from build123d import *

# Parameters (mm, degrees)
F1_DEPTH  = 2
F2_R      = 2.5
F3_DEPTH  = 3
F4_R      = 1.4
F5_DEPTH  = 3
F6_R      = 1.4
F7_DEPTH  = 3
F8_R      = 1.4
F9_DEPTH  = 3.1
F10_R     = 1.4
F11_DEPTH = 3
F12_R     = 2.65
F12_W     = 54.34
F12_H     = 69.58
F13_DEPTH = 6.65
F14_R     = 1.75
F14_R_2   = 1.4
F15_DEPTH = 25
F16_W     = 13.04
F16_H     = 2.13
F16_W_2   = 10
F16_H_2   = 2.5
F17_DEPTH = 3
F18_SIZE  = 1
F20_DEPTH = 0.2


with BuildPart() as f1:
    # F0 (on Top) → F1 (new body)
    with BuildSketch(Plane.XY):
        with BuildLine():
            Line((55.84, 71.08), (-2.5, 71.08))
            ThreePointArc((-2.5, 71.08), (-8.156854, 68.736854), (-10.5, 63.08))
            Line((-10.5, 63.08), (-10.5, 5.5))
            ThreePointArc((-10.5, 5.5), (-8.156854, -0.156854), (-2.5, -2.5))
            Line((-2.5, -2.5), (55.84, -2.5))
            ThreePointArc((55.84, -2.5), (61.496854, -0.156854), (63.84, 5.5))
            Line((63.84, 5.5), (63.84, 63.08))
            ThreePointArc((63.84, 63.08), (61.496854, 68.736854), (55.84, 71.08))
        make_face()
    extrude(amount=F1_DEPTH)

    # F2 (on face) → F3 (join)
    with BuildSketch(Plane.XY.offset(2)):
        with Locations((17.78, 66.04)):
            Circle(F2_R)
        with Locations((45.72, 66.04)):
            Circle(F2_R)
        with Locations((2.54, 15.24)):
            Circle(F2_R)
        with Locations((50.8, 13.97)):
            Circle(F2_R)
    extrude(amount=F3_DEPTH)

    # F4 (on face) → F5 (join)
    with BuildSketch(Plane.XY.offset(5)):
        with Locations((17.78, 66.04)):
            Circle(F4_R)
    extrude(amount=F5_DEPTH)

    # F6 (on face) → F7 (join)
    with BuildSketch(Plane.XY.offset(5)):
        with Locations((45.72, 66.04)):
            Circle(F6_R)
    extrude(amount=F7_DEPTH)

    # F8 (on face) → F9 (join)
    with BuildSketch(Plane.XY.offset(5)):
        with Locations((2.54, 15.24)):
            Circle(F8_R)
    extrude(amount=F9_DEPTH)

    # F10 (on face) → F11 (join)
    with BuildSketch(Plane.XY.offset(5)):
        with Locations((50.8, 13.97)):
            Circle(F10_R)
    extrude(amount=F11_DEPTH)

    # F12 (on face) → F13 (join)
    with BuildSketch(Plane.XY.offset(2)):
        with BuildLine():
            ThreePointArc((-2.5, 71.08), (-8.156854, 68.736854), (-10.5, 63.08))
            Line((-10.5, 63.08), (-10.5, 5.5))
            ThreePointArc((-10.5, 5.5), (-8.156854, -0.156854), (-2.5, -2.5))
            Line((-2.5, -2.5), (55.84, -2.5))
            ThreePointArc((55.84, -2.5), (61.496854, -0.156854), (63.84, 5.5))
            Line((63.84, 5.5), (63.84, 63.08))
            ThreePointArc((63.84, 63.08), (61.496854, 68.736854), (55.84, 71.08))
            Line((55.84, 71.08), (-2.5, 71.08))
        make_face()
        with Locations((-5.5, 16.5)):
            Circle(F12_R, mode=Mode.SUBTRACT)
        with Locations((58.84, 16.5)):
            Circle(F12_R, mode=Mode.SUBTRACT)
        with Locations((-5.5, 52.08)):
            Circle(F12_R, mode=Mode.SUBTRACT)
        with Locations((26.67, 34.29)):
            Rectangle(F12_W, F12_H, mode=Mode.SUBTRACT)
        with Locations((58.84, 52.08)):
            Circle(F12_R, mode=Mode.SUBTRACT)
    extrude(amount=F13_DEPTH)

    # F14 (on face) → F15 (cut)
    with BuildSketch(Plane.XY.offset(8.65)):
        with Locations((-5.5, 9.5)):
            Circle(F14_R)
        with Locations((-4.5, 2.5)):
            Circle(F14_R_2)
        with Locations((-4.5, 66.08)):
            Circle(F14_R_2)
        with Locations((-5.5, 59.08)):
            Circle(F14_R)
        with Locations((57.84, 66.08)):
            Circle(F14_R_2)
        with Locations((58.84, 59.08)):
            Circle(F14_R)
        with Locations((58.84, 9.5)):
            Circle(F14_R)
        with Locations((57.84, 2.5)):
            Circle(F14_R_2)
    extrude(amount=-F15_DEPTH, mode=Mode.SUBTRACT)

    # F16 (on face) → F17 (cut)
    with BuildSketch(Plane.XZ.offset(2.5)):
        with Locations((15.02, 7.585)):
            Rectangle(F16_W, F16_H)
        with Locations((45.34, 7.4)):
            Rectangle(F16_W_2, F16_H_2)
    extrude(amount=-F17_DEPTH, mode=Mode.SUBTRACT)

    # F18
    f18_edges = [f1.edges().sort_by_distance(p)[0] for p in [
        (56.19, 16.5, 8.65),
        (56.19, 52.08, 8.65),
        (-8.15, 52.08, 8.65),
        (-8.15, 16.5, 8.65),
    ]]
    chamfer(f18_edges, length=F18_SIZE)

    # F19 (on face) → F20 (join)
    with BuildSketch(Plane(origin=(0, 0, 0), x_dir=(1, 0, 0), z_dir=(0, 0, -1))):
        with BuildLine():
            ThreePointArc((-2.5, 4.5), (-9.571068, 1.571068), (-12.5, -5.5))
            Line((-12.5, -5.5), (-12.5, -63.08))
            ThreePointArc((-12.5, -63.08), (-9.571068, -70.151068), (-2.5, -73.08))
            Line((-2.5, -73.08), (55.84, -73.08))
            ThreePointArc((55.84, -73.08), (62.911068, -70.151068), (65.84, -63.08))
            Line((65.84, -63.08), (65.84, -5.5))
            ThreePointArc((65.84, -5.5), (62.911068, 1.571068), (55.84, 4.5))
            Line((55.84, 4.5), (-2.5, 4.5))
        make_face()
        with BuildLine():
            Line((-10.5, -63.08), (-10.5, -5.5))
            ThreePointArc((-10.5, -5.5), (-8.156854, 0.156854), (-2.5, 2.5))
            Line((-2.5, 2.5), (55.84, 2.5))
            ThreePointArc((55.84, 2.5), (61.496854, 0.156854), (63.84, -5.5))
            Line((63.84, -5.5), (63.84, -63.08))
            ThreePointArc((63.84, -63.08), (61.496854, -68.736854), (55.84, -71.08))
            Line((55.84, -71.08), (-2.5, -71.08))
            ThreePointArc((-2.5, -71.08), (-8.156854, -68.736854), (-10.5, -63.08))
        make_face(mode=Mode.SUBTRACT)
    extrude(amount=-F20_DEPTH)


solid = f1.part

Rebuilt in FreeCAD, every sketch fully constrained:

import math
import FreeCAD as App
import Part
import Sketcher

V = App.Vector
Q = App.Units.Quantity


def edges_at(feature, points):
    """Names of the edges that pass closest to the given points."""
    edges = feature.Shape.Edges
    near = lambda p: min(range(len(edges)), key=lambda i: edges[i].distToShape(Part.Vertex(*p))[0])
    return sorted({f"Edge{near(p) + 1}" for p in points})

doc = App.newDocument("Part")
body = doc.addObject("PartDesign::Body", "Body")

sketch1 = doc.addObject("Sketcher::SketchObject", "Sketch")
body.addObject(sketch1)
sketch1.AttachmentSupport = (doc.XY_Plane, [""])
sketch1.MapMode = "FlatFace"
sketch1.addGeometry([
    Part.LineSegment(V(56, 71, 0), V(-2, 71, 0)),
    Part.ArcOfCircle(Part.Circle(V(-2, 63, 0), V(0, 0, 1), 8), math.radians(90), math.radians(180)),
    Part.LineSegment(V(-10, 63, 0), V(-10, 6, 0)),
    Part.ArcOfCircle(Part.Circle(V(-2, 6, 0), V(0, 0, 1), 8), math.radians(-180), math.radians(-90)),
    Part.LineSegment(V(-2, -2, 0), V(56, -2, 0)),
    Part.ArcOfCircle(Part.Circle(V(56, 6, 0), V(0, 0, 1), 8), math.radians(-90), math.radians(0)),
    Part.LineSegment(V(64, 6, 0), V(64, 63, 0)),
    Part.ArcOfCircle(Part.Circle(V(56, 63, 0), V(0, 0, 1), 8), math.radians(0), math.radians(90)),
], False)
sketch1.addConstraint([
    Sketcher.Constraint("Tangent", 0, 2, 1, 1),
    Sketcher.Constraint("Tangent", 1, 2, 2, 1),
    Sketcher.Constraint("Tangent", 2, 2, 3, 1),
    Sketcher.Constraint("Tangent", 3, 2, 4, 1),
    Sketcher.Constraint("Tangent", 4, 2, 5, 1),
    Sketcher.Constraint("Tangent", 5, 2, 6, 1),
    Sketcher.Constraint("Tangent", 6, 2, 7, 1),
    Sketcher.Constraint("Tangent", 7, 2, 0, 1),
    Sketcher.Constraint("Horizontal", 0),
    Sketcher.Constraint("Vertical", 2),
    Sketcher.Constraint("Horizontal", 4),
    Sketcher.Constraint("Vertical", 6),
    Sketcher.Constraint("Equal", 1, 3),
    Sketcher.Constraint("Equal", 3, 5),
    Sketcher.Constraint("Equal", 5, 7),
    Sketcher.Constraint("Radius", 1, Q("8.000001 mm")),
    Sketcher.Constraint("DistanceX", 0, 2, 0, 1, Q("58.34 mm")),
    Sketcher.Constraint("DistanceY", 2, 2, 2, 1, Q("57.58 mm")),
    Sketcher.Constraint("DistanceX", 1, 3, -1, 1, Q("2.499999 mm")),
    Sketcher.Constraint("DistanceY", -1, 1, 3, 3, Q("5.500001 mm")),
])
pad1 = doc.addObject("PartDesign::Pad", "Pad")
body.addObject(pad1)
pad1.Profile = sketch1
pad1.Length = 2

sketch2 = doc.addObject("Sketcher::SketchObject", "Sketch001")
body.addObject(sketch2)
sketch2.AttachmentSupport = (doc.XY_Plane, [""])
sketch2.MapMode = "FlatFace"
sketch2.AttachmentOffset = App.Placement(V(0, 0, 2), App.Rotation())
sketch2.addGeometry([
    Part.Circle(V(17.8, 66, 0), V(0, 0, 1), 2.5),
    Part.Circle(V(45.7, 66, 0), V(0, 0, 1), 2.5),
    Part.Circle(V(2.5, 15.2, 0), V(0, 0, 1), 2.5),
    Part.Circle(V(50.8, 14, 0), V(0, 0, 1), 2.5),
], False)
sketch2.addConstraint([
    Sketcher.Constraint("Equal", 0, 1),
    Sketcher.Constraint("Equal", 1, 2),
    Sketcher.Constraint("Equal", 2, 3),
    Sketcher.Constraint("Horizontal", 0, 3, 1, 3),
    Sketcher.Constraint("Diameter", 0, Q("5 mm")),
    Sketcher.Constraint("DistanceX", -1, 1, 3, 3, Q("50.8 mm")),
    Sketcher.Constraint("DistanceY", 2, 3, 0, 3, Q("50.8 mm")),
    Sketcher.Constraint("DistanceX", -1, 1, 0, 3, Q("17.78 mm")),
    Sketcher.Constraint("DistanceY", -1, 1, 0, 3, Q("66.04 mm")),
    Sketcher.Constraint("DistanceX", -1, 1, 1, 3, Q("45.72 mm")),
    Sketcher.Constraint("DistanceX", -1, 1, 2, 3, Q("2.54 mm")),
    Sketcher.Constraint("DistanceY", -1, 1, 3, 3, Q("13.97 mm")),
])
pad2 = doc.addObject("PartDesign::Pad", "Pad001")
body.addObject(pad2)
pad2.Profile = sketch2
pad2.Length = 3

sketch3 = doc.addObject("Sketcher::SketchObject", "Sketch002")
body.addObject(sketch3)
sketch3.AttachmentSupport = (doc.XY_Plane, [""])
sketch3.MapMode = "FlatFace"
sketch3.AttachmentOffset = App.Placement(V(0, 0, 5), App.Rotation())
sketch3.addGeometry(Part.Circle(V(17.8, 66, 0), V(0, 0, 1), 1.4), False)
sketch3.addConstraint([
    Sketcher.Constraint("Diameter", 0, Q("2.8 mm")),
    Sketcher.Constraint("DistanceX", -1, 1, 0, 3, Q("17.78 mm")),
    Sketcher.Constraint("DistanceY", -1, 1, 0, 3, Q("66.04 mm")),
])
pad3 = doc.addObject("PartDesign::Pad", "Pad002")
body.addObject(pad3)
pad3.Profile = sketch3
pad3.Length = 3

sketch4 = doc.addObject("Sketcher::SketchObject", "Sketch003")
body.addObject(sketch4)
sketch4.AttachmentSupport = (doc.XY_Plane, [""])
sketch4.MapMode = "FlatFace"
sketch4.AttachmentOffset = App.Placement(V(0, 0, 5), App.Rotation())
sketch4.addGeometry(Part.Circle(V(45.7, 66, 0), V(0, 0, 1), 1.4), False)
sketch4.addConstraint([
    Sketcher.Constraint("Diameter", 0, Q("2.8 mm")),
    Sketcher.Constraint("DistanceX", -1, 1, 0, 3, Q("45.72 mm")),
    Sketcher.Constraint("DistanceY", -1, 1, 0, 3, Q("66.04 mm")),
])
pad4 = doc.addObject("PartDesign::Pad", "Pad003")
body.addObject(pad4)
pad4.Profile = sketch4
pad4.Length = 3

sketch5 = doc.addObject("Sketcher::SketchObject", "Sketch004")
body.addObject(sketch5)
sketch5.AttachmentSupport = (doc.XY_Plane, [""])
sketch5.MapMode = "FlatFace"
sketch5.AttachmentOffset = App.Placement(V(0, 0, 5), App.Rotation())
sketch5.addGeometry(Part.Circle(V(2.5, 15.2, 0), V(0, 0, 1), 1.4), False)
sketch5.addConstraint([
    Sketcher.Constraint("Diameter", 0, Q("2.8 mm")),
    Sketcher.Constraint("DistanceX", -1, 1, 0, 3, Q("2.54 mm")),
    Sketcher.Constraint("DistanceY", -1, 1, 0, 3, Q("15.24 mm")),
])
pad5 = doc.addObject("PartDesign::Pad", "Pad004")
body.addObject(pad5)
pad5.Profile = sketch5
pad5.Length = 3.1

sketch6 = doc.addObject("Sketcher::SketchObject", "Sketch005")
body.addObject(sketch6)
sketch6.AttachmentSupport = (doc.XY_Plane, [""])
sketch6.MapMode = "FlatFace"
sketch6.AttachmentOffset = App.Placement(V(0, 0, 5), App.Rotation())
sketch6.addGeometry(Part.Circle(V(50.8, 14, 0), V(0, 0, 1), 1.4), False)
sketch6.addConstraint([
    Sketcher.Constraint("Diameter", 0, Q("2.8 mm")),
    Sketcher.Constraint("DistanceX", -1, 1, 0, 3, Q("50.8 mm")),
    Sketcher.Constraint("DistanceY", -1, 1, 0, 3, Q("13.97 mm")),
])
pad6 = doc.addObject("PartDesign::Pad", "Pad005")
body.addObject(pad6)
pad6.Profile = sketch6
pad6.Length = 3

sketch7 = doc.addObject("Sketcher::SketchObject", "Sketch006")
body.addObject(sketch7)
sketch7.AttachmentSupport = (doc.XY_Plane, [""])
sketch7.MapMode = "FlatFace"
sketch7.AttachmentOffset = App.Placement(V(0, 0, 2), App.Rotation())
sketch7.addGeometry([
    Part.ArcOfCircle(Part.Circle(V(-2.5, 63.1, 0), V(0, 0, 1), 8), math.radians(90), math.radians(180)),
    Part.LineSegment(V(-10.5, 63.1, 0), V(-10.5, 5.5, 0)),
    Part.ArcOfCircle(Part.Circle(V(-2.5, 5.5, 0), V(0, 0, 1), 8), math.radians(-180), math.radians(-90)),
    Part.LineSegment(V(-2.5, -2.5, 0), V(55.8, -2.5, 0)),
    Part.ArcOfCircle(Part.Circle(V(55.8, 5.5, 0), V(0, 0, 1), 8), math.radians(-90), math.radians(0)),
    Part.LineSegment(V(63.8, 5.5, 0), V(63.8, 63.1, 0)),
    Part.ArcOfCircle(Part.Circle(V(55.8, 63.1, 0), V(0, 0, 1), 8), math.radians(0), math.radians(90)),
    Part.LineSegment(V(55.8, 71.1, 0), V(-2.5, 71.1, 0)),
    Part.Circle(V(-5.5, 16.5, 0), V(0, 0, 1), 2.6),
    Part.Circle(V(58.8, 16.5, 0), V(0, 0, 1), 2.6),
    Part.Circle(V(-5.5, 52.1, 0), V(0, 0, 1), 2.6),
    Part.LineSegment(V(53.8, -0.5, 0), V(-0.5, -0.5, 0)),
    Part.LineSegment(V(-0.5, -0.5, 0), V(-0.5, 69.1, 0)),
    Part.LineSegment(V(-0.5, 69.1, 0), V(53.8, 69.1, 0)),
    Part.LineSegment(V(53.8, 69.1, 0), V(53.8, -0.5, 0)),
    Part.Circle(V(58.8, 52.1, 0), V(0, 0, 1), 2.6),
], False)
sketch7.addConstraint([
    Sketcher.Constraint("Tangent", 0, 2, 1, 1),
    Sketcher.Constraint("Tangent", 1, 2, 2, 1),
    Sketcher.Constraint("Tangent", 2, 2, 3, 1),
    Sketcher.Constraint("Tangent", 3, 2, 4, 1),
    Sketcher.Constraint("Tangent", 4, 2, 5, 1),
    Sketcher.Constraint("Tangent", 5, 2, 6, 1),
    Sketcher.Constraint("Tangent", 6, 2, 7, 1),
    Sketcher.Constraint("Tangent", 7, 2, 0, 1),
    Sketcher.Constraint("Coincident", 11, 2, 12, 1),
    Sketcher.Constraint("Coincident", 12, 2, 13, 1),
    Sketcher.Constraint("Coincident", 13, 2, 14, 1),
    Sketcher.Constraint("Coincident", 14, 2, 11, 1),
    Sketcher.Constraint("Vertical", 1),
    Sketcher.Constraint("Horizontal", 3),
    Sketcher.Constraint("Vertical", 5),
    Sketcher.Constraint("Horizontal", 7),
    Sketcher.Constraint("Horizontal", 11),
    Sketcher.Constraint("Vertical", 12),
    Sketcher.Constraint("Horizontal", 13),
    Sketcher.Constraint("Vertical", 14),
    Sketcher.Constraint("Equal", 0, 2),
    Sketcher.Constraint("Equal", 2, 4),
    Sketcher.Constraint("Equal", 4, 6),
    Sketcher.Constraint("Equal", 8, 9),
    Sketcher.Constraint("Equal", 9, 10),
    Sketcher.Constraint("Equal", 10, 15),
    Sketcher.Constraint("Horizontal", 8, 3, 9, 3),
    Sketcher.Constraint("Horizontal", 10, 3, 15, 3),
    Sketcher.Constraint("Vertical", 8, 3, 10, 3),
    Sketcher.Constraint("Vertical", 9, 3, 15, 3),
    Sketcher.Constraint("Radius", 0, Q("8.000001 mm")),
    Sketcher.Constraint("Diameter", 8, Q("5.3 mm")),
    Sketcher.Constraint("DistanceX", 8, 3, 2, 3, Q("3.000001 mm")),
    Sketcher.Constraint("DistanceY", 2, 3, 8, 3, Q("10.999999 mm")),
    Sketcher.Constraint("DistanceX", 4, 3, 9, 3, Q("3.000001 mm")),
    Sketcher.Constraint("DistanceY", 10, 3, 0, 3, Q("10.999999 mm")),
    Sketcher.Constraint("DistanceX", 2, 2, 11, 2, Q("2 mm")),
    Sketcher.Constraint("DistanceY", 2, 2, 11, 2, Q("2 mm")),
    Sketcher.Constraint("DistanceY", 12, 2, 7, 2, Q("2 mm")),
    Sketcher.Constraint("DistanceX", 13, 2, 6, 2, Q("2 mm")),
    Sketcher.Constraint("DistanceX", 3, 1, 3, 2, Q("58.34 mm")),
    Sketcher.Constraint("DistanceY", 1, 2, 1, 1, Q("57.58 mm")),
    Sketcher.Constraint("DistanceX", 0, 3, -1, 1, Q("2.499999 mm")),
    Sketcher.Constraint("DistanceY", -1, 1, 2, 3, Q("5.500001 mm")),
])
pad7 = doc.addObject("PartDesign::Pad", "Pad006")
body.addObject(pad7)
pad7.Profile = sketch7
pad7.Length = 6.65

sketch8 = doc.addObject("Sketcher::SketchObject", "Sketch007")
body.addObject(sketch8)
sketch8.AttachmentSupport = (doc.XY_Plane, [""])
sketch8.MapMode = "FlatFace"
sketch8.AttachmentOffset = App.Placement(V(0, 0, 8.65), App.Rotation())
sketch8.addGeometry([
    Part.Circle(V(-5.5, 9.5, 0), V(0, 0, 1), 1.8),
    Part.Circle(V(-4.5, 2.5, 0), V(0, 0, 1), 1.4),
    Part.Circle(V(-4.5, 66.1, 0), V(0, 0, 1), 1.4),
    Part.Circle(V(-5.5, 59.1, 0), V(0, 0, 1), 1.8),
    Part.Circle(V(57.8, 66.1, 0), V(0, 0, 1), 1.4),
    Part.Circle(V(58.8, 59.1, 0), V(0, 0, 1), 1.8),
    Part.Circle(V(58.8, 9.5, 0), V(0, 0, 1), 1.8),
    Part.Circle(V(57.8, 2.5, 0), V(0, 0, 1), 1.4),
], False)
sketch8.addConstraint([
    Sketcher.Constraint("Equal", 1, 2),
    Sketcher.Constraint("Equal", 0, 3),
    Sketcher.Constraint("Equal", 2, 4),
    Sketcher.Constraint("Equal", 3, 5),
    Sketcher.Constraint("Equal", 5, 6),
    Sketcher.Constraint("Equal", 4, 7),
    Sketcher.Constraint("Horizontal", 2, 3, 4, 3),
    Sketcher.Constraint("Horizontal", 3, 3, 5, 3),
    Sketcher.Constraint("Horizontal", 0, 3, 6, 3),
    Sketcher.Constraint("Horizontal", 1, 3, 7, 3),
    Sketcher.Constraint("Vertical", 1, 3, 2, 3),
    Sketcher.Constraint("Vertical", 0, 3, 3, 3),
    Sketcher.Constraint("Vertical", 5, 3, 6, 3),
    Sketcher.Constraint("Vertical", 4, 3, 7, 3),
    Sketcher.Constraint("Diameter", 0, Q("3.5 mm")),
    Sketcher.Constraint("Diameter", 1, Q("2.8 mm")),
    Sketcher.Constraint("DistanceX", 0, 3, 1, 3, Q("1 mm")),
    Sketcher.Constraint("DistanceY", 1, 3, 0, 3, Q("7 mm")),
    Sketcher.Constraint("DistanceY", 3, 3, 2, 3, Q("7 mm")),
    Sketcher.Constraint("DistanceX", 4, 3, 5, 3, Q("1 mm")),
    Sketcher.Constraint("DistanceX", 0, 3, -1, 1, Q("5.5 mm")),
    Sketcher.Constraint("DistanceY", -1, 1, 0, 3, Q("9.5 mm")),
    Sketcher.Constraint("DistanceY", -1, 1, 2, 3, Q("66.08 mm")),
    Sketcher.Constraint("DistanceX", -1, 1, 4, 3, Q("57.84 mm")),
])
pocket1 = doc.addObject("PartDesign::Pocket", "Pocket")
body.addObject(pocket1)
pocket1.Profile = sketch8
pocket1.Length = 25

sketch9 = doc.addObject("Sketcher::SketchObject", "Sketch008")
body.addObject(sketch9)
sketch9.AttachmentSupport = (doc.XZ_Plane, [""])
sketch9.MapMode = "FlatFace"
sketch9.AttachmentOffset = App.Placement(V(0, 0, 2.5), App.Rotation())
sketch9.addGeometry([
    Part.LineSegment(V(8.5, 8.7, 0), V(8.5, 6.5, 0)),
    Part.LineSegment(V(8.5, 6.5, 0), V(21.5, 6.5, 0)),
    Part.LineSegment(V(21.5, 6.5, 0), V(21.5, 8.7, 0)),
    Part.LineSegment(V(21.5, 8.7, 0), V(8.5, 8.7, 0)),
    Part.LineSegment(V(40.3, 8.7, 0), V(40.3, 6.2, 0)),
    Part.LineSegment(V(40.3, 6.2, 0), V(50.3, 6.2, 0)),
    Part.LineSegment(V(50.3, 6.2, 0), V(50.3, 8.7, 0)),
    Part.LineSegment(V(50.3, 8.7, 0), V(40.3, 8.7, 0)),
], False)
sketch9.addConstraint([
    Sketcher.Constraint("Coincident", 0, 2, 1, 1),
    Sketcher.Constraint("Coincident", 1, 2, 2, 1),
    Sketcher.Constraint("Coincident", 2, 2, 3, 1),
    Sketcher.Constraint("Coincident", 3, 2, 0, 1),
    Sketcher.Constraint("Coincident", 4, 2, 5, 1),
    Sketcher.Constraint("Coincident", 5, 2, 6, 1),
    Sketcher.Constraint("Coincident", 6, 2, 7, 1),
    Sketcher.Constraint("Coincident", 7, 2, 4, 1),
    Sketcher.Constraint("Vertical", 0),
    Sketcher.Constraint("Horizontal", 1),
    Sketcher.Constraint("Vertical", 2),
    Sketcher.Constraint("Horizontal", 3),
    Sketcher.Constraint("Vertical", 4),
    Sketcher.Constraint("Horizontal", 5),
    Sketcher.Constraint("Vertical", 6),
    Sketcher.Constraint("Horizontal", 7),
    Sketcher.Constraint("Horizontal", 3, 2, 6, 2),
    Sketcher.Constraint("DistanceX", 5, 1, 5, 2, Q("10 mm")),
    Sketcher.Constraint("DistanceY", 4, 2, 4, 1, Q("2.5 mm")),
    Sketcher.Constraint("DistanceX", 1, 1, 1, 2, Q("13.04 mm")),
    Sketcher.Constraint("DistanceY", 0, 2, 0, 1, Q("2.13 mm")),
    Sketcher.Constraint("DistanceX", -1, 1, 0, 2, Q("8.5 mm")),
    Sketcher.Constraint("DistanceX", 1, 2, 4, 2, Q("18.8 mm")),
    Sketcher.Constraint("DistanceY", -1, 1, 0, 2, Q("6.52 mm")),
])
pocket2 = doc.addObject("PartDesign::Pocket", "Pocket001")
body.addObject(pocket2)
pocket2.Profile = sketch9
pocket2.Length = 3
doc.recompute()

chamfer = doc.addObject("PartDesign::Chamfer", "Chamfer")
body.addObject(chamfer)
chamfer.Base = (pocket2, edges_at(pocket2, [
    (56.19, 16.5, 8.65),
    (56.19, 52.08, 8.65),
    (-8.15, 52.08, 8.65),
    (-8.15, 16.5, 8.65),
]))
chamfer.Size = 1

sketch10 = doc.addObject("Sketcher::SketchObject", "Sketch009")
body.addObject(sketch10)
sketch10.AttachmentSupport = (doc.XY_Plane, [""])
sketch10.MapMode = "FlatFace"
sketch10.addGeometry([
    Part.ArcOfCircle(Part.Circle(V(-3, 5, 0), V(0, 0, 1), 10), math.radians(180), math.radians(270)),
    Part.LineSegment(V(-12, 6, 0), V(-12, 63, 0)),
    Part.ArcOfCircle(Part.Circle(V(-3, 63, 0), V(0, 0, 1), 10), math.radians(90), math.radians(180)),
    Part.LineSegment(V(-2, 73, 0), V(56, 73, 0)),
    Part.ArcOfCircle(Part.Circle(V(56, 63, 0), V(0, 0, 1), 10), math.radians(0), math.radians(90)),
    Part.LineSegment(V(66, 63, 0), V(66, 6, 0)),
    Part.ArcOfCircle(Part.Circle(V(56, 5, 0), V(0, 0, 1), 10), math.radians(-90), math.radians(0)),
    Part.LineSegment(V(56, -4, 0), V(-2, -4, 0)),
    Part.ArcOfCircle(Part.Circle(V(-2, 63, 0), V(0, 0, 1), 8), math.radians(90), math.radians(180)),
    Part.LineSegment(V(-10, 63, 0), V(-10, 6, 0)),
    Part.ArcOfCircle(Part.Circle(V(-2, 6, 0), V(0, 0, 1), 8), math.radians(-180), math.radians(-90)),
    Part.LineSegment(V(-2, -2, 0), V(56, -2, 0)),
    Part.ArcOfCircle(Part.Circle(V(56, 6, 0), V(0, 0, 1), 8), math.radians(-90), math.radians(0)),
    Part.LineSegment(V(64, 6, 0), V(64, 63, 0)),
    Part.ArcOfCircle(Part.Circle(V(56, 63, 0), V(0, 0, 1), 8), math.radians(0), math.radians(90)),
    Part.LineSegment(V(56, 71, 0), V(-2, 71, 0)),
], False)
sketch10.addConstraint([
    Sketcher.Constraint("Tangent", 0, 1, 1, 1),
    Sketcher.Constraint("Tangent", 1, 2, 2, 2),
    Sketcher.Constraint("Tangent", 2, 1, 3, 1),
    Sketcher.Constraint("Tangent", 3, 2, 4, 2),
    Sketcher.Constraint("Tangent", 4, 1, 5, 1),
    Sketcher.Constraint("Tangent", 5, 2, 6, 2),
    Sketcher.Constraint("Tangent", 6, 1, 7, 1),
    Sketcher.Constraint("Tangent", 7, 2, 0, 2),
    Sketcher.Constraint("Tangent", 8, 2, 9, 1),
    Sketcher.Constraint("Tangent", 9, 2, 10, 1),
    Sketcher.Constraint("Tangent", 10, 2, 11, 1),
    Sketcher.Constraint("Tangent", 11, 2, 12, 1),
    Sketcher.Constraint("Tangent", 12, 2, 13, 1),
    Sketcher.Constraint("Tangent", 13, 2, 14, 1),
    Sketcher.Constraint("Tangent", 14, 2, 15, 1),
    Sketcher.Constraint("Tangent", 15, 2, 8, 1),
    Sketcher.Constraint("Vertical", 1),
    Sketcher.Constraint("Horizontal", 3),
    Sketcher.Constraint("Vertical", 5),
    Sketcher.Constraint("Horizontal", 7),
    Sketcher.Constraint("Vertical", 9),
    Sketcher.Constraint("Horizontal", 11),
    Sketcher.Constraint("Vertical", 13),
    Sketcher.Constraint("Horizontal", 15),
    Sketcher.Constraint("Coincident", 8, 3, 2, 3),
    Sketcher.Constraint("Coincident", 10, 3, 0, 3),
    Sketcher.Constraint("Coincident", 12, 3, 6, 3),
    Sketcher.Constraint("Equal", 0, 2),
    Sketcher.Constraint("Equal", 2, 4),
    Sketcher.Constraint("Equal", 4, 6),
    Sketcher.Constraint("Equal", 12, 14),
    Sketcher.Constraint("Radius", 0, Q("9.999999 mm")),
    Sketcher.Constraint("Radius", 8, Q("8.000001 mm")),
    Sketcher.Constraint("DistanceX", 3, 1, 3, 2, Q("58.34 mm")),
    Sketcher.Constraint("DistanceY", 1, 1, 1, 2, Q("57.58 mm")),
    Sketcher.Constraint("DistanceX", 0, 3, -1, 1, Q("2.500001 mm")),
    Sketcher.Constraint("DistanceY", -1, 1, 0, 3, Q("5.499999 mm")),
])
pad8 = doc.addObject("PartDesign::Pad", "Pad007")
body.addObject(pad8)
pad8.Profile = sketch10
pad8.Length = 0.2

doc.recompute()
